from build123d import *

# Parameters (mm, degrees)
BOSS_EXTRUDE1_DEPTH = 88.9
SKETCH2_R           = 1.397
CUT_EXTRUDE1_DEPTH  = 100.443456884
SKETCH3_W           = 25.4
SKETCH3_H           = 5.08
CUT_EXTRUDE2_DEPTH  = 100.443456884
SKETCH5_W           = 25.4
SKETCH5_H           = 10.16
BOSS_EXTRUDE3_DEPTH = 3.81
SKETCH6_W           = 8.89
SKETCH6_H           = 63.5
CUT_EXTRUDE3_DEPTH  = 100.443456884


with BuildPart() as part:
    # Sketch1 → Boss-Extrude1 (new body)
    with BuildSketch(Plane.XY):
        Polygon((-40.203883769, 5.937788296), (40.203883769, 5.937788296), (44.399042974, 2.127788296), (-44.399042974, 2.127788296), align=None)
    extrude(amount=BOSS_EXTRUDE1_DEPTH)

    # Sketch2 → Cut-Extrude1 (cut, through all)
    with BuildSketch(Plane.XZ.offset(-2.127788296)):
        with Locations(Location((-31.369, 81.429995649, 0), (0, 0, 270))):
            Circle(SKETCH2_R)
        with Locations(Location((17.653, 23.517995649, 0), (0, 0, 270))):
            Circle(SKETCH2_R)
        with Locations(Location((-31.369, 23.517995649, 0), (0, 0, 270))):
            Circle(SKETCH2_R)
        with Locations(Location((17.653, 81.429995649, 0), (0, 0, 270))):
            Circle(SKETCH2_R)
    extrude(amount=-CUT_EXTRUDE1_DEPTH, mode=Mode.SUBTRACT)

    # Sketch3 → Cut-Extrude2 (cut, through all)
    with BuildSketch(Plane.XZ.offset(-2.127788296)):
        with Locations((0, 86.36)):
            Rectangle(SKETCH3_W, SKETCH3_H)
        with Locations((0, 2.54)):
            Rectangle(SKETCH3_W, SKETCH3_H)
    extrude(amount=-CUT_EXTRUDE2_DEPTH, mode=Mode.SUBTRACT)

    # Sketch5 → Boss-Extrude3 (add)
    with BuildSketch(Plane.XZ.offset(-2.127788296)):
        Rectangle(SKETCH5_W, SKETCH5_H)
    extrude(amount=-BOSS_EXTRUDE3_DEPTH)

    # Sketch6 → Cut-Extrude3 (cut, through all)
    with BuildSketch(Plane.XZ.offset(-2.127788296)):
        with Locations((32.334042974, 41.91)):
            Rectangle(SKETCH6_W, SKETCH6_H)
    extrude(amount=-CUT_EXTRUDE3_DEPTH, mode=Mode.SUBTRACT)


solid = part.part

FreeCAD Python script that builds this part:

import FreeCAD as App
import Part
import Sketcher
from FreeCAD import Vector
Q = App.Units.Quantity

doc = App.newDocument("Part")
body = doc.addObject("PartDesign::Body", "Body")

sketch1 = body.newObject("Sketcher::SketchObject", "Sketch")
sketch1.AttachmentSupport = (doc.getObject("XY_Plane"), [""])
sketch1.MapMode = "FlatFace"
sketch1.addGeometry(Part.LineSegment(Vector(40, 6, 0), Vector(-40, 6, 0)), False)
sketch1.addGeometry(Part.LineSegment(Vector(-40, 6, 0), Vector(-44, 2, 0)), False)
sketch1.addGeometry(Part.LineSegment(Vector(-44, 2, 0), Vector(44, 2, 0)), False)
sketch1.addGeometry(Part.LineSegment(Vector(44, 2, 0), Vector(40, 6, 0)), False)
sketch1.addConstraint(Sketcher.Constraint("Coincident", 0, 2, 1, 1))
sketch1.addConstraint(Sketcher.Constraint("Coincident", 1, 2, 2, 1))
sketch1.addConstraint(Sketcher.Constraint("Coincident", 2, 2, 3, 1))
sketch1.addConstraint(Sketcher.Constraint("Coincident", 3, 2, 0, 1))
sketch1.addConstraint(Sketcher.Constraint("Horizontal", 0))
sketch1.addConstraint(Sketcher.Constraint("Horizontal", 2))
sketch1.addConstraint(Sketcher.Constraint("Equal", 1, 3))
sketch1.addConstraint(Sketcher.Constraint("DistanceY", 1, 2, 0, 2, Q("0.15 in")))
sketch1.addConstraint(Sketcher.Constraint("Distance", 1, Q("5.66705 mm")))
sketch1.addConstraint(Sketcher.Constraint("DistanceX", 0, 2, 0, 1, Q("80.407768 mm")))
sketch1.addConstraint(Sketcher.Constraint("DistanceY", -1, 1, 0, 2, Q("5.937788 mm")))
sketch1.addConstraint(Sketcher.Constraint("DistanceX", 0, 2, -1, 1, Q("40.203884 mm")))
pad1 = body.newObject("PartDesign::Pad", "Pad")
pad1.Profile = sketch1
pad1.Length = Q("3.5 in")

sketch2 = body.newObject("Sketcher::SketchObject", "Sketch001")
sketch2.AttachmentSupport = (doc.getObject("XZ_Plane"), [""])
sketch2.MapMode = "FlatFace"
sketch2.AttachmentOffset = App.Placement(Vector(0, 0, -2.127788), App.Rotation())
sketch2.addGeometry(Part.Circle(Vector(-31.4, 81.4, 0), Vector(0, 0, 1), 1.4), False)
sketch2.addGeometry(Part.Circle(Vector(17.7, 23.5, 0), Vector(0, 0, 1), 1.4), False)
sketch2.addGeometry(Part.Circle(Vector(-31.4, 23.5, 0), Vector(0, 0, 1), 1.4), False)
sketch2.addGeometry(Part.Circle(Vector(17.7, 81.4, 0), Vector(0, 0, 1), 1.4), False)
sketch2.addConstraint(Sketcher.Constraint("Equal", 0, 1))
sketch2.addConstraint(Sketcher.Constraint("Equal", 1, 2))
sketch2.addConstraint(Sketcher.Constraint("Equal", 2, 3))
sketch2.addConstraint(Sketcher.Constraint("Horizontal", 1, 3, 2, 3))
sketch2.addConstraint(Sketcher.Constraint("Horizontal", 0, 3, 3, 3))
sketch2.addConstraint(Sketcher.Constraint("Vertical", 0, 3, 2, 3))
sketch2.addConstraint(Sketcher.Constraint("Vertical", 1, 3, 3, 3))
sketch2.addConstraint(Sketcher.Constraint("Diameter", 0, Q("0.11 in")))
sketch2.addConstraint(Sketcher.Constraint("DistanceX", 0, 3, 1, 3, Q("1.93 in")))
sketch2.addConstraint(Sketcher.Constraint("DistanceY", 1, 3, 0, 3, Q("2.28 in")))
sketch2.addConstraint(Sketcher.Constraint("DistanceX", 0, 3, -1, 1, Q("1.235 in")))
sketch2.addConstraint(Sketcher.Constraint("DistanceY", -1, 1, 0, 3, Q("81.429996 mm")))
pocket1 = body.newObject("PartDesign::Pocket", "Pocket")
pocket1.Profile = sketch2
pocket1.Type = "ThroughAll"

sketch3 = body.newObject("Sketcher::SketchObject", "Sketch002")
sketch3.AttachmentSupport = (doc.getObject("XZ_Plane"), [""])
sketch3.MapMode = "FlatFace"
sketch3.AttachmentOffset = App.Placement(Vector(0, 0, -2.127788), App.Rotation())
sketch3.addGeometry(Part.LineSegment(Vector(-13, 89, 0), Vector(-13, 84, 0)), False)
sketch3.addGeometry(Part.LineSegment(Vector(-13, 84, 0), Vector(13, 84, 0)), False)
sketch3.addGeometry(Part.LineSegment(Vector(13, 84, 0), Vector(13, 89, 0)), False)
sketch3.addGeometry(Part.LineSegment(Vector(13, 89, 0), Vector(-13, 89, 0)), False)
sketch3.addGeometry(Part.LineSegment(Vector(-13, 5, 0), Vector(-13, 0, 0)), False)
sketch3.addGeometry(Part.LineSegment(Vector(-13, 0, 0), Vector(13, 0, 0)), False)
sketch3.addGeometry(Part.LineSegment(Vector(13, 0, 0), Vector(13, 5, 0)), False)
sketch3.addGeometry(Part.LineSegment(Vector(13, 5, 0), Vector(-13, 5, 0)), False)
sketch3.addConstraint(Sketcher.Constraint("Coincident", 0, 2, 1, 1))
sketch3.addConstraint(Sketcher.Constraint("Coincident", 1, 2, 2, 1))
sketch3.addConstraint(Sketcher.Constraint("Coincident", 2, 2, 3, 1))
sketch3.addConstraint(Sketcher.Constraint("Coincident", 3, 2, 0, 1))
sketch3.addConstraint(Sketcher.Constraint("Coincident", 4, 2, 5, 1))
sketch3.addConstraint(Sketcher.Constraint("Coincident", 5, 2, 6, 1))
sketch3.addConstraint(Sketcher.Constraint("Coincident", 6, 2, 7, 1))
sketch3.addConstraint(Sketcher.Constraint("Coincident", 7, 2, 4, 1))
sketch3.addConstraint(Sketcher.Constraint("Vertical", 0))
sketch3.addConstraint(Sketcher.Constraint("Horizontal", 1))
sketch3.addConstraint(Sketcher.Constraint("Vertical", 2))
sketch3.addConstraint(Sketcher.Constraint("Horizontal", 3))
sketch3.addConstraint(Sketcher.Constraint("Vertical", 4))
sketch3.addConstraint(Sketcher.Constraint("Horizontal", 5))
sketch3.addConstraint(Sketcher.Constraint("Vertical", 6))
sketch3.addConstraint(Sketcher.Constraint("Horizontal", 7))
sketch3.addConstraint(Sketcher.Constraint("Symmetric", 4, 2, 5, 2, -1, 1))
sketch3.addConstraint(Sketcher.Constraint("Vertical", 3, 2, 4, 2))
sketch3.addConstraint(Sketcher.Constraint("Vertical", 2, 2, 5, 2))
sketch3.addConstraint(Sketcher.Constraint("Equal", 2, 4))
sketch3.addConstraint(Sketcher.Constraint("DistanceX", 1, 1, 1, 2, Q("1 in")))
sketch3.addConstraint(Sketcher.Constraint("DistanceY", 0, 2, 0, 1, Q("0.2 in")))
sketch3.addConstraint(Sketcher.Constraint("DistanceY", -1, 1, 0, 2, Q("3.3 in")))
pocket2 = body.newObject("PartDesign::Pocket", "Pocket001")
pocket2.Profile = sketch3
pocket2.Type = "ThroughAll"

sketch4 = body.newObject("Sketcher::SketchObject", "Sketch003")
sketch4.AttachmentSupport = (doc.getObject("XZ_Plane"), [""])
sketch4.MapMode = "FlatFace"
sketch4.AttachmentOffset = App.Placement(Vector(0, 0, -2.127788), App.Rotation())
sketch4.addGeometry(Part.LineSegment(Vector(-13, 5, 0), Vector(-13, -5, 0)), False)
sketch4.addGeometry(Part.LineSegment(Vector(-13, -5, 0), Vector(13, -5, 0)), False)
sketch4.addGeometry(Part.LineSegment(Vector(13, -5, 0), Vector(13, 5, 0)), False)
sketch4.addGeometry(Part.LineSegment(Vector(13, 5, 0), Vector(-13, 5, 0)), False)
sketch4.addConstraint(Sketcher.Constraint("Coincident", 0, 2, 1, 1))
sketch4.addConstraint(Sketcher.Constraint("Coincident", 1, 2, 2, 1))
sketch4.addConstraint(Sketcher.Constraint("Coincident", 2, 2, 3, 1))
sketch4.addConstraint(Sketcher.Constraint("Coincident", 3, 2, 0, 1))
sketch4.addConstraint(Sketcher.Constraint("Vertical", 0))
sketch4.addConstraint(Sketcher.Constraint("Horizontal", 1))
sketch4.addConstraint(Sketcher.Constraint("Vertical", 2))
sketch4.addConstraint(Sketcher.Constraint("Horizontal", 3))
sketch4.addConstraint(Sketcher.Constraint("Symmetric", 0, 2, 2, 2, -1, 1))
sketch4.addConstraint(Sketcher.Constraint("DistanceX", 1, 1, 1, 2, Q("1 in")))
sketch4.addConstraint(Sketcher.Constraint("DistanceY", 0, 2, 0, 1, Q("0.4 in")))
pad2 = body.newObject("PartDesign::Pad", "Pad001")
pad2.Profile = sketch4
pad2.Length = Q("0.15 in")
pad2.Reversed = True

sketch5 = body.newObject("Sketcher::SketchObject", "Sketch004")
sketch5.AttachmentSupport = (doc.getObject("XZ_Plane"), [""])
sketch5.MapMode = "FlatFace"
sketch5.AttachmentOffset = App.Placement(Vector(0, 0, -2.127788), App.Rotation())
sketch5.addGeometry(Part.LineSegment(Vector(28, 74, 0), Vector(28, 10, 0)), False)
sketch5.addGeometry(Part.LineSegment(Vector(28, 10, 0), Vector(37, 10, 0)), False)
sketch5.addGeometry(Part.LineSegment(Vector(37, 10, 0), Vector(37, 74, 0)), False)
sketch5.addGeometry(Part.LineSegment(Vector(37, 74, 0), Vector(28, 74, 0)), False)
sketch5.addConstraint(Sketcher.Constraint("Coincident", 0, 2, 1, 1))
sketch5.addConstraint(Sketcher.Constraint("Coincident", 1, 2, 2, 1))
sketch5.addConstraint(Sketcher.Constraint("Coincident", 2, 2, 3, 1))
sketch5.addConstraint(Sketcher.Constraint("Coincident", 3, 2, 0, 1))
sketch5.addConstraint(Sketcher.Constraint("Vertical", 0))
sketch5.addConstraint(Sketcher.Constraint("Horizontal", 1))
sketch5.addConstraint(Sketcher.Constraint("Vertical", 2))
sketch5.addConstraint(Sketcher.Constraint("Horizontal", 3))
sketch5.addConstraint(Sketcher.Constraint("DistanceY", 0, 2, 0, 1, Q("2.5 in")))
sketch5.addConstraint(Sketcher.Constraint("DistanceX", 1, 1, 1, 2, Q("0.35 in")))
sketch5.addConstraint(Sketcher.Constraint("DistanceY", -1, 1, 0, 2, Q("0.4 in")))
sketch5.addConstraint(Sketcher.Constraint("DistanceX", -1, 1, 0, 2, Q("27.889043 mm")))
pocket3 = body.newObject("PartDesign::Pocket", "Pocket002")
pocket3.Profile = sketch5
pocket3.Type = "ThroughAll"

doc.recompute()
